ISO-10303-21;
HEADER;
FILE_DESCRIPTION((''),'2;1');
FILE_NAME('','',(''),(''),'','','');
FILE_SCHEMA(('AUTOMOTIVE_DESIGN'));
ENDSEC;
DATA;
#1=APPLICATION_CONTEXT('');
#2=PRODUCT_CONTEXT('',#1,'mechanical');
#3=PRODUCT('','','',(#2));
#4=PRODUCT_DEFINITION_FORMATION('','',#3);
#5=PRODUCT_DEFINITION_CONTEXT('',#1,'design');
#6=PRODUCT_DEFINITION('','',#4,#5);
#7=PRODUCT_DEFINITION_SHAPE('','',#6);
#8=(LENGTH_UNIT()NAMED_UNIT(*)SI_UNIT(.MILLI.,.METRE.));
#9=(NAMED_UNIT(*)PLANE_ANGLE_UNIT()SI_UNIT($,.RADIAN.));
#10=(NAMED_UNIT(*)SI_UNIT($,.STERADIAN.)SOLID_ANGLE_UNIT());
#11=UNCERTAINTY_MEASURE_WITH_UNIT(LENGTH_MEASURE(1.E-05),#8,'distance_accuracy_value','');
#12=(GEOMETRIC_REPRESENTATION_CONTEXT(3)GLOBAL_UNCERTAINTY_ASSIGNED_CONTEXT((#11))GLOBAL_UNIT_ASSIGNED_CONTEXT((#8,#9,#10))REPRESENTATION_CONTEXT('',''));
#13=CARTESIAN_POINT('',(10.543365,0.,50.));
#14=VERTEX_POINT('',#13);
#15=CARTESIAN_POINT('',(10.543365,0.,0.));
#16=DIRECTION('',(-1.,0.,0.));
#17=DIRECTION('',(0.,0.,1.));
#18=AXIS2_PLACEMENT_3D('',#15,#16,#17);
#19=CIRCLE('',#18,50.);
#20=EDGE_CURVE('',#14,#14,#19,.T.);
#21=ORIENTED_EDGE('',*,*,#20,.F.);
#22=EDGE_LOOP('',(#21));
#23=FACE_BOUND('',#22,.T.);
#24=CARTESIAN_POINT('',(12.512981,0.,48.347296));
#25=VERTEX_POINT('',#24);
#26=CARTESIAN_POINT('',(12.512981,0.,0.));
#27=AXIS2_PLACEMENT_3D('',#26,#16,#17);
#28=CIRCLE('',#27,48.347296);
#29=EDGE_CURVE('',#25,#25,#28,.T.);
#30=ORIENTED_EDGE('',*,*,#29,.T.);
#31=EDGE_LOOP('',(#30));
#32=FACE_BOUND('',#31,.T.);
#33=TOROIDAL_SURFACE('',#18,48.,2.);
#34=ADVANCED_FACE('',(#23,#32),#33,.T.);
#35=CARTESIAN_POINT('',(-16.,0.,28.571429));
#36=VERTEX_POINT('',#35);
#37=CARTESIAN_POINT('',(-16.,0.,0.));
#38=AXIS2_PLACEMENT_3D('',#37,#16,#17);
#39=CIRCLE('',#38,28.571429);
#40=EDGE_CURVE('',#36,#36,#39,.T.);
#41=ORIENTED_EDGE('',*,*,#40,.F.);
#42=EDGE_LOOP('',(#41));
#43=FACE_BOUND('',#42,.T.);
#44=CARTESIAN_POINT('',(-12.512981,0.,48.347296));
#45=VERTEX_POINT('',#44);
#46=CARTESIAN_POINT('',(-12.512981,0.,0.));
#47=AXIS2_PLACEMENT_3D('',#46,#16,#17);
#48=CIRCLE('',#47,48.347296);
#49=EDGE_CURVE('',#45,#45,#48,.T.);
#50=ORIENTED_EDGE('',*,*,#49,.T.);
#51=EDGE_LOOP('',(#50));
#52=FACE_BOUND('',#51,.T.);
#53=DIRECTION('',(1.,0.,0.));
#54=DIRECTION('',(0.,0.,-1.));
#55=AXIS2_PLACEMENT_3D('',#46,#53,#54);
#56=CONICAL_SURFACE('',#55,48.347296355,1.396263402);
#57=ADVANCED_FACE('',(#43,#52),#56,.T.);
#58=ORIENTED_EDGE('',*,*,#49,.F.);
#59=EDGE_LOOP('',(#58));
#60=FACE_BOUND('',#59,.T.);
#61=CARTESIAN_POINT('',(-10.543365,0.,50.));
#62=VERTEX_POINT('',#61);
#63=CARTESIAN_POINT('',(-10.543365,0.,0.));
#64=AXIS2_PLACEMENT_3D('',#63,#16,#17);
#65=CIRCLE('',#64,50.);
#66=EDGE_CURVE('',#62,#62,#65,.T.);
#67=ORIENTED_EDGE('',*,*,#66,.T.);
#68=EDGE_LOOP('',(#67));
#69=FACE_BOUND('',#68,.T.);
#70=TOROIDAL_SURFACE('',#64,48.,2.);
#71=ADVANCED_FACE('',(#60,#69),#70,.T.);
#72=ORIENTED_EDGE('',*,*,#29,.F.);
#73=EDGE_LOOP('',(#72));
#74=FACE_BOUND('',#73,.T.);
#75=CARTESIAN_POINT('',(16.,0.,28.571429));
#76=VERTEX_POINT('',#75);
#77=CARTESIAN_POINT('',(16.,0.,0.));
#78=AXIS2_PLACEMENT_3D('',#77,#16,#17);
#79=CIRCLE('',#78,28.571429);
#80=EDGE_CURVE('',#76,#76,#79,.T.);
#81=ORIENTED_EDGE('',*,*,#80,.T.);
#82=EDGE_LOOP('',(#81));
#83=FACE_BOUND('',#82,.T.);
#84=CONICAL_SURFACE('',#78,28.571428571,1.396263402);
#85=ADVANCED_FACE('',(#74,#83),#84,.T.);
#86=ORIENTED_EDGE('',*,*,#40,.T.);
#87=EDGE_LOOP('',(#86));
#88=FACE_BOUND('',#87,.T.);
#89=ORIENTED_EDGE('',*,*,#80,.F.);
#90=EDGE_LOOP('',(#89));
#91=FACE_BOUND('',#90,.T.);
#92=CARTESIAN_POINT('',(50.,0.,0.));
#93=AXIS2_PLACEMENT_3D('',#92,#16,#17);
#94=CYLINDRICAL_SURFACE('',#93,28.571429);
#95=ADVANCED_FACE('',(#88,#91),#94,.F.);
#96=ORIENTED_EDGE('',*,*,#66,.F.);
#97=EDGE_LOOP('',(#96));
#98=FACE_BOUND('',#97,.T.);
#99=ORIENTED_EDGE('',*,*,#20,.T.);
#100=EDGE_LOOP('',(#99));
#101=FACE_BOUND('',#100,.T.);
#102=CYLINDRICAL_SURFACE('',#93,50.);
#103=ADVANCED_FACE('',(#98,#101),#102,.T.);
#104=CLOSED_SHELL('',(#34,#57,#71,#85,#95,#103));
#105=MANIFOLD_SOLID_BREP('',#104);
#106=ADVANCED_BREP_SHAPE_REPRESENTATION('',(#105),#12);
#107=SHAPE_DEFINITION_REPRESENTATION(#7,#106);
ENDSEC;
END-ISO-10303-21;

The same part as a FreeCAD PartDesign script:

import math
import FreeCAD as App
import Part
import Sketcher
Q = App.Units.Quantity

doc = App.newDocument("Part")
params = doc.addObject("Spreadsheet::Sheet", "Params")
for row, (alias, value) in enumerate([
    ("sketch1_radius", "2 mm"),
    ("sketch1_width", "32 mm"),
    ("revolution_angle", "360 deg"),
], start=1):
    params.set(f"A{row}", alias)
    params.set(f"B{row}", "=" + value)
    params.setAlias(f"B{row}", alias)

body = doc.addObject("PartDesign::Body", "Body")

# Sketch on XY plane
sketch1 = body.newObject("Sketcher::SketchObject", "Sketch")
sketch1.AttachmentSupport = (doc.getObject("XY_Plane"), [""])
sketch1.MapMode = "FlatFace"
sketch1.addGeometry([
    Part.LineSegment(App.Vector(-16, 28.6, 0), App.Vector(16, 28.6, 0)),  # 0
    Part.LineSegment(App.Vector(16, 28.6, 0), App.Vector(12.5, 48.3, 0)),  # 1
    Part.ArcOfCircle(Part.Circle(App.Vector(10.5, 48, 0), App.Vector(0, 0, 1), 2), math.radians(10), math.radians(90)),  # 2
    Part.LineSegment(App.Vector(10.5, 50, 0), App.Vector(-10.5, 50, 0)),  # 3
    Part.ArcOfCircle(Part.Circle(App.Vector(-10.5, 48, 0), App.Vector(0, 0, 1), 2), math.radians(90), math.radians(170)),  # 4
    Part.LineSegment(App.Vector(-12.5, 48.3, 0), App.Vector(-16, 28.6, 0)),  # 5
], False)
sketch1.addConstraint([
    Sketcher.Constraint("Coincident", 0, 2, 1, 1),
    Sketcher.Constraint("Tangent", 1, 2, 2, 1),
    Sketcher.Constraint("Tangent", 2, 2, 3, 1),
    Sketcher.Constraint("Tangent", 3, 2, 4, 1),
    Sketcher.Constraint("Tangent", 4, 2, 5, 1),
    Sketcher.Constraint("Coincident", 5, 2, 0, 1),
    Sketcher.Constraint("Horizontal", 0),
    Sketcher.Constraint("Horizontal", 3),
    Sketcher.Constraint("Equal", 2, 4),
    Sketcher.Constraint("Symmetric", 1, 2, 4, 2, -2),
    Sketcher.Constraint("Radius", 2, Q("2 mm")),
    Sketcher.Constraint("DistanceX", 0, 1, 0, 2, Q("32 mm")),
    Sketcher.Constraint("Angle", 1, Q("100 deg")),
    Sketcher.Constraint("DistanceY", -1, 1, 2, 3, Q("48 mm")),
    Sketcher.Constraint("DistanceX", 3, 2, 3, 1, Q("21.086731 mm")),
])
sketch1.setExpression("Constraints[10]", "Params.sketch1_radius")
sketch1.setExpression("Constraints[11]", "Params.sketch1_width")
revolution = body.newObject("PartDesign::Revolution", "Revolution")
revolution.Profile = sketch1
revolution.ReferenceAxis = (sketch1, ["H_Axis"])
revolution.setExpression("Angle", "Params.revolution_angle")

doc.recompute()
